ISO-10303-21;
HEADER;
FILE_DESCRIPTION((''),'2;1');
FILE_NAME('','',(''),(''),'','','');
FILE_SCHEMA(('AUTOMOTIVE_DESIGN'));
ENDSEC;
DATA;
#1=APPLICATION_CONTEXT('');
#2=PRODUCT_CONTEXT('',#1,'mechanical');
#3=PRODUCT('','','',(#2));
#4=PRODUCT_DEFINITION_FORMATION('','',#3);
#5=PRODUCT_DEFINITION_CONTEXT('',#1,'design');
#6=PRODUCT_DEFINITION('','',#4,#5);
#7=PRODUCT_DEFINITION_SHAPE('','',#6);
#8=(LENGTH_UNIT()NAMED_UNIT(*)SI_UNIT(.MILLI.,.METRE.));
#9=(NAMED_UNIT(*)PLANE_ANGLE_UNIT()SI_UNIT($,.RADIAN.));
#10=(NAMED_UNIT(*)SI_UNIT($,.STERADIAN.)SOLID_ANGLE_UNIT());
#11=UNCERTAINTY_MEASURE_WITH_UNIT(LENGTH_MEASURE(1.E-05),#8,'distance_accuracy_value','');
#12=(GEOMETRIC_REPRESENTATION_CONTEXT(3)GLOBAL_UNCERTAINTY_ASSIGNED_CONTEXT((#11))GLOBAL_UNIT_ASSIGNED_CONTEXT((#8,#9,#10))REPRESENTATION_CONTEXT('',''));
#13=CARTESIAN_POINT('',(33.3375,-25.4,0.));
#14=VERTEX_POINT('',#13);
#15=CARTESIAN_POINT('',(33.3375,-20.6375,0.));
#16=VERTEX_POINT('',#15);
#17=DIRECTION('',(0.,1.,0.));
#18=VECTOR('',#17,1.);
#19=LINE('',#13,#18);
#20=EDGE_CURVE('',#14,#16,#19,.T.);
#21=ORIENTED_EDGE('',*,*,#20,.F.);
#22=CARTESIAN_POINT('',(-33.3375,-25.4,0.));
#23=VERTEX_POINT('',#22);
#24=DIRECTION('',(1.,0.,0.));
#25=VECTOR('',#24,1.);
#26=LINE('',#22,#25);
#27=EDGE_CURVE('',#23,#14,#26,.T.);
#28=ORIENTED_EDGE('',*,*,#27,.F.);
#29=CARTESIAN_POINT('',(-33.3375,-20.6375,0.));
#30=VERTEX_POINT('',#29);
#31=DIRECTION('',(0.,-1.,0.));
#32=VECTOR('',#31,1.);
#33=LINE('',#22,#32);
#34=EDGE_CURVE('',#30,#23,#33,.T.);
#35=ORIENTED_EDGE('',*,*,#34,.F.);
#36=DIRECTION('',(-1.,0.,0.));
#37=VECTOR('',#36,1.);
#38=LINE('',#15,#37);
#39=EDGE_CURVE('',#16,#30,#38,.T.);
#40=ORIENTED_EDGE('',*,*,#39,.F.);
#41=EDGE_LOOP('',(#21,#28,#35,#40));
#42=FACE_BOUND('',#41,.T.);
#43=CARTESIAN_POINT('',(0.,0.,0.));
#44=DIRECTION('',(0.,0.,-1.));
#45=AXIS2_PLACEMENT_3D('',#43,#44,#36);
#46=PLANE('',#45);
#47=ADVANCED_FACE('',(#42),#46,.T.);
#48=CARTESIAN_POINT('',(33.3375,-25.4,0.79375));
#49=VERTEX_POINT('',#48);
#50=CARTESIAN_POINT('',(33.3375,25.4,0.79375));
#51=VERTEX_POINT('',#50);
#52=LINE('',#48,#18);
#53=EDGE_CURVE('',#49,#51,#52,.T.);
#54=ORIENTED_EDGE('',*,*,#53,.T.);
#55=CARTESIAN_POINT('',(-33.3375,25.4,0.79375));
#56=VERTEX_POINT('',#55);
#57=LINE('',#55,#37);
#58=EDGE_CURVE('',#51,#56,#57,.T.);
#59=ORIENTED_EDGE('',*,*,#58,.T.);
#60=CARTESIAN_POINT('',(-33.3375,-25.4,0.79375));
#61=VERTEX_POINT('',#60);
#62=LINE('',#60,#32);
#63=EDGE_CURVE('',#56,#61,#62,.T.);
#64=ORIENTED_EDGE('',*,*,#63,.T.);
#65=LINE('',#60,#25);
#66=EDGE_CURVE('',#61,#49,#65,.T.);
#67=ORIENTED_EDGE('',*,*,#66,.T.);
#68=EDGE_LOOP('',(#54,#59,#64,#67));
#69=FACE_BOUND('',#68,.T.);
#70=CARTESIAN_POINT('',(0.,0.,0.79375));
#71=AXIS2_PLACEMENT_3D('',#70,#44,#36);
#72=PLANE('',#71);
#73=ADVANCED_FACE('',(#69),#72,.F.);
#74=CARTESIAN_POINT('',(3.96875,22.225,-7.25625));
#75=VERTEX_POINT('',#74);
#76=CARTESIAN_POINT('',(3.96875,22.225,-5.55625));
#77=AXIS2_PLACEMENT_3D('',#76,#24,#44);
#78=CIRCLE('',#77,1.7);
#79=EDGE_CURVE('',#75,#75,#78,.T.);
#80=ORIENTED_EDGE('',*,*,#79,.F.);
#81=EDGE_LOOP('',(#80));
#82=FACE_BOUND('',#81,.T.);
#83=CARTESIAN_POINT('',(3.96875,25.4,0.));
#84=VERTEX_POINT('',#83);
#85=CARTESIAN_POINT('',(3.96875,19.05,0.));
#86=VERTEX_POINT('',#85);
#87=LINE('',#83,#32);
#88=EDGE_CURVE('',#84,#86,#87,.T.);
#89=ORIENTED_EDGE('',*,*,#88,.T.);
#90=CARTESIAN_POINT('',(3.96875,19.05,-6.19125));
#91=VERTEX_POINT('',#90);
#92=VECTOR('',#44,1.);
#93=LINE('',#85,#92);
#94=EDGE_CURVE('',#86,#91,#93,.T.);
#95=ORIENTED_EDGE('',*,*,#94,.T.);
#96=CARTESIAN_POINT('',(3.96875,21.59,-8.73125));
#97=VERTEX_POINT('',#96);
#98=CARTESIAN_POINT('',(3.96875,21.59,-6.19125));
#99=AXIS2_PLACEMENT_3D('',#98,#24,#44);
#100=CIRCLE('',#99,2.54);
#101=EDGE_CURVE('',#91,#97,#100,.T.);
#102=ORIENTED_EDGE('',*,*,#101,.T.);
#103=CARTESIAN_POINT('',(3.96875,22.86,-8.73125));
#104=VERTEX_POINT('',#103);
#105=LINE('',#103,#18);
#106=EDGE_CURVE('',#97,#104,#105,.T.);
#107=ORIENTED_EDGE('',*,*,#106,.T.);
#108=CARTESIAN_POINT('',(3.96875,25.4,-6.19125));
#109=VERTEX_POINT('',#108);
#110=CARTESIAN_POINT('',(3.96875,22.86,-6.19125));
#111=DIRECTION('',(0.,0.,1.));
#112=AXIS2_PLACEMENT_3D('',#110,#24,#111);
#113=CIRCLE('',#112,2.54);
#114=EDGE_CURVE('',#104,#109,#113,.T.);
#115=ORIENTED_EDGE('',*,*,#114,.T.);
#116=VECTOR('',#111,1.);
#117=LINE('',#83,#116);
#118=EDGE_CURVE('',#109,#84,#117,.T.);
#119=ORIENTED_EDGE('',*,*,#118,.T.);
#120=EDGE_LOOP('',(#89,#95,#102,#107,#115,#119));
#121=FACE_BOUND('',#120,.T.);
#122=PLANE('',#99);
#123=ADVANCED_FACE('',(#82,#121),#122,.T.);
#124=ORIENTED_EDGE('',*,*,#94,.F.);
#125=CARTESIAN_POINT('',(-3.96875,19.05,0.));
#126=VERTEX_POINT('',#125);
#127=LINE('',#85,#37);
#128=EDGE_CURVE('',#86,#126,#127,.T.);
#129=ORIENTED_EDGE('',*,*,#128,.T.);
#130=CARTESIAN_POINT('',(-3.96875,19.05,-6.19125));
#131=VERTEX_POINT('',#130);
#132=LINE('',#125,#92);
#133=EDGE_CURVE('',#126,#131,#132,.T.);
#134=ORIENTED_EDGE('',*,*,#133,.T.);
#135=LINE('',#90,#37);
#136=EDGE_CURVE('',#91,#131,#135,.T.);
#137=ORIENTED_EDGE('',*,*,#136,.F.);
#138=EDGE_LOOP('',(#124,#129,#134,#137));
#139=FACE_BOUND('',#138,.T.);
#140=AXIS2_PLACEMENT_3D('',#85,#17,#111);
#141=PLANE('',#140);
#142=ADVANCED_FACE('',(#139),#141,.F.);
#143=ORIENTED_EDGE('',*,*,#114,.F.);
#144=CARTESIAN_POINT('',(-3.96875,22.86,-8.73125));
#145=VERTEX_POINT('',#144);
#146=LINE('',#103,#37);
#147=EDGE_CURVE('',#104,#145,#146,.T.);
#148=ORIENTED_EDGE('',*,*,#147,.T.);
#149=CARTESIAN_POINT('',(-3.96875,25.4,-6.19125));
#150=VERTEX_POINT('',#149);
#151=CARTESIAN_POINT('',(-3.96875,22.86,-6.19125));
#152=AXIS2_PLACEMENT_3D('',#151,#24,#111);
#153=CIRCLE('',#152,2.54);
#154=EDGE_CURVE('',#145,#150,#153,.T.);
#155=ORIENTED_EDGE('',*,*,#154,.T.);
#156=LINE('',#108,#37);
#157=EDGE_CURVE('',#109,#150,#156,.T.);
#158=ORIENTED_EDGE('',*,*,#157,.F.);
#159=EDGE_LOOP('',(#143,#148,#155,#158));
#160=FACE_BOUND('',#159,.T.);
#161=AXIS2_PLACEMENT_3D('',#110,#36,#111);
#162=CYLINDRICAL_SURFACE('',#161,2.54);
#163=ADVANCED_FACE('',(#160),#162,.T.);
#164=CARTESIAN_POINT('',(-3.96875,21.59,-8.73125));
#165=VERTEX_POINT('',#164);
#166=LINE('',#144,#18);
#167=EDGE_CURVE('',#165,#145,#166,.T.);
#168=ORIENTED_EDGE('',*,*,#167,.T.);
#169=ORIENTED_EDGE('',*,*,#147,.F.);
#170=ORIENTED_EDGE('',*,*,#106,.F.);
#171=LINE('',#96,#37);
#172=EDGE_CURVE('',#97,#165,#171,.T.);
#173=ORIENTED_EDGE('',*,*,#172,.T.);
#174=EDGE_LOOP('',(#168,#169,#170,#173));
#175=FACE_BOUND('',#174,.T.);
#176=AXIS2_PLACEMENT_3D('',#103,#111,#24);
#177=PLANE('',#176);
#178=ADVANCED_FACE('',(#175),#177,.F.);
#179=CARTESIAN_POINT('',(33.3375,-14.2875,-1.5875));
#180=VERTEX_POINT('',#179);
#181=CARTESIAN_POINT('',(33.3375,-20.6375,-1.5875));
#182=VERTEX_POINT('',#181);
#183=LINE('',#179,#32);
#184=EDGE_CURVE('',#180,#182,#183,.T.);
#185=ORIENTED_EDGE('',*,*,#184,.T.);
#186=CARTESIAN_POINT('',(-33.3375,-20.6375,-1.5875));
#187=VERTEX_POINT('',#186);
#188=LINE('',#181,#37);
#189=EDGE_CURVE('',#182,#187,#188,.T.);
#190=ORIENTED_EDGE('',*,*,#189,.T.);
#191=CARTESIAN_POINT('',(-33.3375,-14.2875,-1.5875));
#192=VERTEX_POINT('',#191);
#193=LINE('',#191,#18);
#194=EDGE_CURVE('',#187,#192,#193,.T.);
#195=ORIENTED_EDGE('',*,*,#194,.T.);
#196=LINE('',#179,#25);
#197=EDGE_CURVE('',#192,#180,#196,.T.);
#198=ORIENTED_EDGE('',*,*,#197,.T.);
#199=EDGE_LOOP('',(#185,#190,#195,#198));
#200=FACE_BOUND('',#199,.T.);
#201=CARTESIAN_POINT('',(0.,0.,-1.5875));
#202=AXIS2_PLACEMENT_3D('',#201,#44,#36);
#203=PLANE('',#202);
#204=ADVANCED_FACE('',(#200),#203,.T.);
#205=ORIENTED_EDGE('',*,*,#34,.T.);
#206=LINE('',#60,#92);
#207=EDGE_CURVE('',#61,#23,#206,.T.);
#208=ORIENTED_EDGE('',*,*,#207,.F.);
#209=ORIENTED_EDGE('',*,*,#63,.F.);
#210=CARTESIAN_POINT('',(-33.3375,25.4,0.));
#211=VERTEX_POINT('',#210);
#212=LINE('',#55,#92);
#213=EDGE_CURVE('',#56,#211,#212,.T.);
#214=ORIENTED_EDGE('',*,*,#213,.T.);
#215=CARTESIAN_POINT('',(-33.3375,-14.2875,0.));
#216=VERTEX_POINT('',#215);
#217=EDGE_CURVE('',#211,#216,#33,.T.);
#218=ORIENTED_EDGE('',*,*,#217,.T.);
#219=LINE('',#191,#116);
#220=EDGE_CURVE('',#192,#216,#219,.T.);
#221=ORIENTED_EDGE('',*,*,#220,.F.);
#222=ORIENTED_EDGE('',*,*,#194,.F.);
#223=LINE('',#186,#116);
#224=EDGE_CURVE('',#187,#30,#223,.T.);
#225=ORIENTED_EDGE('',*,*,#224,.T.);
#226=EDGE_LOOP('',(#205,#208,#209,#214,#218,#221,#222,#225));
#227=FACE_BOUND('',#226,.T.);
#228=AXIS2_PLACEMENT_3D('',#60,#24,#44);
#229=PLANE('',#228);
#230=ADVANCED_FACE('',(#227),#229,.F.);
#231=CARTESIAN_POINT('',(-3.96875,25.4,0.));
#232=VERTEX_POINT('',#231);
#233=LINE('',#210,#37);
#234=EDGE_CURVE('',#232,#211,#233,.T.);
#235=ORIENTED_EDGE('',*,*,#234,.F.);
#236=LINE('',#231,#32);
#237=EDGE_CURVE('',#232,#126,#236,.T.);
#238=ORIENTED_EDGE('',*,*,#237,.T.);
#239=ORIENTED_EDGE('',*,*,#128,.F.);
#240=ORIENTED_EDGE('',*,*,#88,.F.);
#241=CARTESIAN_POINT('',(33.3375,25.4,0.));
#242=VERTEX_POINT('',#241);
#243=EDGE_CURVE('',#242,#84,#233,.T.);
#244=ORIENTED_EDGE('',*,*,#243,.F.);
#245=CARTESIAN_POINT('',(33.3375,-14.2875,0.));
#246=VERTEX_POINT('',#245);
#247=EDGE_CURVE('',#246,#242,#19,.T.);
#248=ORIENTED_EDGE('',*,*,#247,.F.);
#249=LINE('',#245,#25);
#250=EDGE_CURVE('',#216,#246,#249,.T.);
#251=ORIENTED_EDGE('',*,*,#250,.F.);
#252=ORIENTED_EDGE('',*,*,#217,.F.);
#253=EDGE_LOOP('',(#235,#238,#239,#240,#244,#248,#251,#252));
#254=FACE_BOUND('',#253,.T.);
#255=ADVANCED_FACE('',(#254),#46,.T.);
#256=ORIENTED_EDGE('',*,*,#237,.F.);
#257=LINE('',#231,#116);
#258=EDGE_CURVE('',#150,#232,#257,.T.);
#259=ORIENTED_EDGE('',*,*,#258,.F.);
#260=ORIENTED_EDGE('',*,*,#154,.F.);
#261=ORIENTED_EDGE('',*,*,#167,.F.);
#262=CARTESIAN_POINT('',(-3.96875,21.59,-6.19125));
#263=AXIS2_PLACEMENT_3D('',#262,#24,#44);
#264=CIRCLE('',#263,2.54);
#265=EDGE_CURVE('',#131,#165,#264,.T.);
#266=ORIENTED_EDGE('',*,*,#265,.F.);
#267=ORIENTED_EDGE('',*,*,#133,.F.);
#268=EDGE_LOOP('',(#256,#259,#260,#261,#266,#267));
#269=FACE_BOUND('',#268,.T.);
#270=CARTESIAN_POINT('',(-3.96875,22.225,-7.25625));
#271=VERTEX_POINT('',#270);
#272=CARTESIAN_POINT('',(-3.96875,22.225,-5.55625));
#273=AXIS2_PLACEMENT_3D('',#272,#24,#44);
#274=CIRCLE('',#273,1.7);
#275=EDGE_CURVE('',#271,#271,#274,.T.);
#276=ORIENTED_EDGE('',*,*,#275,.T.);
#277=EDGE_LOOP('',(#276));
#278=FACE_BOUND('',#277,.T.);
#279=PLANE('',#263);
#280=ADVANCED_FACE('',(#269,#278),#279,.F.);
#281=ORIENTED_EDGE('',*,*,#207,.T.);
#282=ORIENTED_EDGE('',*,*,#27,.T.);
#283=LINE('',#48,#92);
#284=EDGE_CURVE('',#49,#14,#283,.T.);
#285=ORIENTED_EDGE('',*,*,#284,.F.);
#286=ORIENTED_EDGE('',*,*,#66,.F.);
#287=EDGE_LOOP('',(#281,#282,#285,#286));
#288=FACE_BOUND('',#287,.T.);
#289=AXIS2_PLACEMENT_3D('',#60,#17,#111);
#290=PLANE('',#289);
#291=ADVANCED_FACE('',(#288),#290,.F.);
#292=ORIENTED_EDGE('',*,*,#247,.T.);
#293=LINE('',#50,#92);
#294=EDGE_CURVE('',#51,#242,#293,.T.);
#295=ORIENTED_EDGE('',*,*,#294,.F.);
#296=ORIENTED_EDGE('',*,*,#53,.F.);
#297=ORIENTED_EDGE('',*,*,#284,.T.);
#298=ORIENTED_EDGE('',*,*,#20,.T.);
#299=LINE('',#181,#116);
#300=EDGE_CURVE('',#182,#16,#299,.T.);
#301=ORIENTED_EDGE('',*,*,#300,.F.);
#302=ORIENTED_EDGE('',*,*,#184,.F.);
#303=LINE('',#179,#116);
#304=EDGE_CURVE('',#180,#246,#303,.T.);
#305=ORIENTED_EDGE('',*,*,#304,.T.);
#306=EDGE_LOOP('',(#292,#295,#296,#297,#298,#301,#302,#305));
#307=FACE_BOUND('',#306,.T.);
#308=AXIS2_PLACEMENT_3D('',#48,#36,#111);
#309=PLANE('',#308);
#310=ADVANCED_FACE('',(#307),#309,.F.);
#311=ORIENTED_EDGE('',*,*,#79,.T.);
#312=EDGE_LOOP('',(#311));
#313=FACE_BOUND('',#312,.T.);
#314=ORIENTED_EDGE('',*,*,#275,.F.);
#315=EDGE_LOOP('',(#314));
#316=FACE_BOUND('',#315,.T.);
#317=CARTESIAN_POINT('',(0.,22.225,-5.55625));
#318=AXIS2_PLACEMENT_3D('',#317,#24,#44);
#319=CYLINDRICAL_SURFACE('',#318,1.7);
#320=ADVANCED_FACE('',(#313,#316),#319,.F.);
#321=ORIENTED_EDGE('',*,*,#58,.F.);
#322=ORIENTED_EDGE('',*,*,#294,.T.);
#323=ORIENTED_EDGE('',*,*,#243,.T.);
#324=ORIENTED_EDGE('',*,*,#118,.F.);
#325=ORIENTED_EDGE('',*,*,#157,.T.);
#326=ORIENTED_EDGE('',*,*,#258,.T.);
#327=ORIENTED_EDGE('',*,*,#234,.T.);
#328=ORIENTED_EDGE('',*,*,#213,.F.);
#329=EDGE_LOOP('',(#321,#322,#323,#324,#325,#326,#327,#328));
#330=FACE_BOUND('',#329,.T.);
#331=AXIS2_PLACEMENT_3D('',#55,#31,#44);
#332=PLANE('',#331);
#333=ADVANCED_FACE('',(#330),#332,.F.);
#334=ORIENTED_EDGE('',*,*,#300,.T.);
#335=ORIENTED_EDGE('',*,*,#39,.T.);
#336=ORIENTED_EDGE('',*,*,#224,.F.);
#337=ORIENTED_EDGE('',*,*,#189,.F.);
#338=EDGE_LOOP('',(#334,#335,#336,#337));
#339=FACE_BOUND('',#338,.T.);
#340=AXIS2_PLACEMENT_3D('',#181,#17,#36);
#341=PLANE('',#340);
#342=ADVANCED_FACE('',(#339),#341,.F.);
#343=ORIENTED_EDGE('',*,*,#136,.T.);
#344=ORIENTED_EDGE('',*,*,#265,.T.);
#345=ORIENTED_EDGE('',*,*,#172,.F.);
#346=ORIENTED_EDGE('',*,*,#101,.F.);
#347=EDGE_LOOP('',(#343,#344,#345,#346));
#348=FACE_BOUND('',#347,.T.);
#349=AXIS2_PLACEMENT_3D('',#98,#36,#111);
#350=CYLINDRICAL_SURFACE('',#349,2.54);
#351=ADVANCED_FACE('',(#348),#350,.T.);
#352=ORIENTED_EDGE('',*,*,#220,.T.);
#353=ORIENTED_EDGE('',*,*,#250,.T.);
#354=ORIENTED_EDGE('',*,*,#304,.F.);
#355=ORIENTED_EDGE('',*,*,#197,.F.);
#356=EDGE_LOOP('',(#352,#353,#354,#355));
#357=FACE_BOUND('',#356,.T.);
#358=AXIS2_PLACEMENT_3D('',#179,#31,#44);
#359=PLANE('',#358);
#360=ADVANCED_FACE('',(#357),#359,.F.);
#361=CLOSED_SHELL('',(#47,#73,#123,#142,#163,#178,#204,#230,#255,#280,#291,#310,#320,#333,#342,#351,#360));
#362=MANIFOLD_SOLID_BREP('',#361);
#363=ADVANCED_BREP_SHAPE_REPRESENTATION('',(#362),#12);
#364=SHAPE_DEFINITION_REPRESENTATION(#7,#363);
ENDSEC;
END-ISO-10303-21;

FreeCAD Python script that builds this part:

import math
import FreeCAD as App
import Part
import Sketcher

V = App.Vector
Q = App.Units.Quantity

doc = App.newDocument("Part")
body = doc.addObject("PartDesign::Body", "Body")

# Sketch on XY plane
sketch1 = body.newObject("Sketcher::SketchObject", "Sketch")
sketch1.AttachmentSupport = (doc.getObject("XY_Plane"), [""])
sketch1.MapMode = "FlatFace"
sketch1.addGeometry([
    Part.LineSegment(V(-33, 25, 0), V(-33, -25, 0)),
    Part.LineSegment(V(-33, -25, 0), V(33, -25, 0)),
    Part.LineSegment(V(33, -25, 0), V(33, 25, 0)),
    Part.LineSegment(V(33, 25, 0), V(-33, 25, 0)),
], False)
sketch1.addConstraint([
    Sketcher.Constraint("Coincident", 0, 2, 1, 1),
    Sketcher.Constraint("Coincident", 1, 2, 2, 1),
    Sketcher.Constraint("Coincident", 2, 2, 3, 1),
    Sketcher.Constraint("Coincident", 3, 2, 0, 1),
    Sketcher.Constraint("Vertical", 0),
    Sketcher.Constraint("Horizontal", 1),
    Sketcher.Constraint("Vertical", 2),
    Sketcher.Constraint("Horizontal", 3),
    Sketcher.Constraint("Symmetric", 0, 2, 2, 2, -1, 1),
    Sketcher.Constraint("DistanceY", 0, 2, 0, 1, Q("2 in")),
    Sketcher.Constraint("DistanceX", 1, 1, 1, 2, Q("2.625 in")),
])
pad1 = body.newObject("PartDesign::Pad", "Pad")
pad1.Profile = sketch1
pad1.Length = Q("0.03125 in")

# Sketch on YZ plane
sketch2 = body.newObject("Sketcher::SketchObject", "Sketch001")
sketch2.AttachmentSupport = (doc.getObject("YZ_Plane"), [""])
sketch2.MapMode = "FlatFace"
sketch2.addGeometry([
    Part.LineSegment(V(25.4, -6.2, 0), V(25.4, 0, 0)),  # 0
    Part.LineSegment(V(25.4, 0, 0), V(19.1, 0, 0)),  # 1
    Part.LineSegment(V(19.1, 0, 0), V(19.1, -6.2, 0)),  # 2
    Part.ArcOfCircle(Part.Circle(V(21.6, -6.2, 0), V(0, 0, 1), 2.5), math.radians(-180), math.radians(-90)),  # 3
    Part.LineSegment(V(21.6, -8.7, 0), V(22.9, -8.7, 0)),  # 4
    Part.ArcOfCircle(Part.Circle(V(22.9, -6.2, 0), V(0, 0, 1), 2.5), math.radians(-90), math.radians(0)),  # 5
], False)
sketch2.addConstraint([
    Sketcher.Constraint("Coincident", 0, 2, 1, 1),
    Sketcher.Constraint("Coincident", 1, 2, 2, 1),
    Sketcher.Constraint("Tangent", 2, 2, 3, 1),
    Sketcher.Constraint("Tangent", 3, 2, 4, 1),
    Sketcher.Constraint("Tangent", 4, 2, 5, 1),
    Sketcher.Constraint("Tangent", 5, 2, 0, 1),
    Sketcher.Constraint("Vertical", 0),
    Sketcher.Constraint("Horizontal", 1),
    Sketcher.Constraint("Vertical", 2),
    Sketcher.Constraint("Horizontal", 4),
    Sketcher.Constraint("Equal", 3, 5),
    Sketcher.Constraint("PointOnObject", 0, 2, -1),
    Sketcher.Constraint("Radius", 3, Q("0.1 in")),
    Sketcher.Constraint("DistanceX", -1, 1, 0, 2, Q("1 in")),
    Sketcher.Constraint("DistanceX", 1, 2, 1, 1, Q("0.25 in")),
    Sketcher.Constraint("DistanceY", 3, 2, -1, 1, Q("0.34375 in")),
])
pad2 = body.newObject("PartDesign::Pad", "Pad001")
pad2.Profile = sketch2
pad2.Length = Q("0.3125 in")
pad2.Midplane = True

# Sketch on XZ plane
sketch3 = body.newObject("Sketcher::SketchObject", "Sketch002")
sketch3.AttachmentSupport = (doc.getObject("XZ_Plane"), [""])
sketch3.MapMode = "FlatFace"
sketch3.AttachmentOffset = App.Placement(V(0, 0, -0.875 * 25.4), App.Rotation())
sketch3.addGeometry([
    Part.LineSegment(V(-7.4, -5.6, 0), V(0, -5.6, 0)),
    Part.LineSegment(V(0, -5.6, 0), V(0, -7.3, 0)),
    Part.LineSegment(V(0, -7.3, 0), V(-6.3, -7.3, 0)),
    Part.LineSegment(V(-6.3, -7.3, 0), V(-7.4, -5.6, 0)),
], False)
sketch3.addGeometry(Part.LineSegment(V(0, -5.6, 0), V(-7.4, -5.6, 0)), True)  # axis
sketch3.addConstraint([
    Sketcher.Constraint("Coincident", 0, 2, 1, 1),
    Sketcher.Constraint("Coincident", 1, 2, 2, 1),
    Sketcher.Constraint("Coincident", 2, 2, 3, 1),
    Sketcher.Constraint("Coincident", 3, 2, 0, 1),
    Sketcher.Constraint("Horizontal", 0),
    Sketcher.Constraint("Vertical", 1),
    Sketcher.Constraint("Horizontal", 2),
    Sketcher.Constraint("Horizontal", 4),
    Sketcher.Constraint("Coincident", 4, 1, 0, 2),
    Sketcher.Constraint("PointOnObject", 0, 2, -2),
    Sketcher.Constraint("Equal", 0, 4),
    Sketcher.Constraint("Angle", 3, Q("121 deg")),
    Sketcher.Constraint("DistanceX", 2, 2, 2, 1, Q("0.25 in")),
    Sketcher.Constraint("DistanceY", 0, 2, -1, 1, Q("0.21875 in")),
    Sketcher.Constraint("DistanceY", 1, 2, 1, 1, Q("1.7 mm")),
])
groove = body.newObject("PartDesign::Groove", "Groove")
groove.Profile = sketch3
groove.ReferenceAxis = (sketch3, ["Axis0"])
groove.Angle = 360

# Sketch on YZ plane
sketch4 = body.newObject("Sketcher::SketchObject", "Sketch003")
sketch4.AttachmentSupport = (doc.getObject("YZ_Plane"), [""])
sketch4.MapMode = "FlatFace"
sketch4.addGeometry(Part.Circle(V(22.2, -5.6, 0), V(0, 0, 1), 1.7), False)
sketch4.addConstraint([
    Sketcher.Constraint("Diameter", 0, Q("3.4 mm")),
    Sketcher.Constraint("DistanceX", -1, 1, 0, 3, Q("0.875 in")),
    Sketcher.Constraint("DistanceY", 0, 3, -1, 1, Q("0.21875 in")),
])
doc.recompute()
hole = body.newObject("PartDesign::Hole", "Hole")
hole.Profile = sketch4
hole.ThreadType = "None"
hole.Diameter = 3.4
hole.DepthType = "Dimension"
hole.Depth = Q("0.25 in")
hole.DrillPoint = "Angled"
hole.DrillPointAngle = 118
hole.Reversed = True

# Sketch on XY plane
sketch5 = body.newObject("Sketcher::SketchObject", "Sketch004")
sketch5.AttachmentSupport = (doc.getObject("XY_Plane"), [""])
sketch5.MapMode = "FlatFace"
sketch5.addGeometry([
    Part.LineSegment(V(33, -14, 0), V(33, -21, 0)),
    Part.LineSegment(V(33, -21, 0), V(-33, -21, 0)),
    Part.LineSegment(V(-33, -21, 0), V(-33, -14, 0)),
    Part.LineSegment(V(-33, -14, 0), V(33, -14, 0)),
], False)
sketch5.addConstraint([
    Sketcher.Constraint("Coincident", 0, 2, 1, 1),
    Sketcher.Constraint("Coincident", 1, 2, 2, 1),
    Sketcher.Constraint("Coincident", 2, 2, 3, 1),
    Sketcher.Constraint("Coincident", 3, 2, 0, 1),
    Sketcher.Constraint("Vertical", 0),
    Sketcher.Constraint("Horizontal", 1),
    Sketcher.Constraint("Vertical", 2),
    Sketcher.Constraint("Horizontal", 3),
    Sketcher.Constraint("DistanceY", 0, 2, 0, 1, Q("0.25 in")),
    Sketcher.Constraint("DistanceX", 1, 2, 1, 1, Q("2.625 in")),
    Sketcher.Constraint("DistanceX", -1, 1, 0, 2, Q("1.3125 in")),
    Sketcher.Constraint("DistanceY", 0, 2, -1, 1, Q("0.8125 in")),
])
pad3 = body.newObject("PartDesign::Pad", "Pad002")
pad3.Profile = sketch5
pad3.Length = Q("0.0625 in")
pad3.Reversed = True

doc.recompute()
